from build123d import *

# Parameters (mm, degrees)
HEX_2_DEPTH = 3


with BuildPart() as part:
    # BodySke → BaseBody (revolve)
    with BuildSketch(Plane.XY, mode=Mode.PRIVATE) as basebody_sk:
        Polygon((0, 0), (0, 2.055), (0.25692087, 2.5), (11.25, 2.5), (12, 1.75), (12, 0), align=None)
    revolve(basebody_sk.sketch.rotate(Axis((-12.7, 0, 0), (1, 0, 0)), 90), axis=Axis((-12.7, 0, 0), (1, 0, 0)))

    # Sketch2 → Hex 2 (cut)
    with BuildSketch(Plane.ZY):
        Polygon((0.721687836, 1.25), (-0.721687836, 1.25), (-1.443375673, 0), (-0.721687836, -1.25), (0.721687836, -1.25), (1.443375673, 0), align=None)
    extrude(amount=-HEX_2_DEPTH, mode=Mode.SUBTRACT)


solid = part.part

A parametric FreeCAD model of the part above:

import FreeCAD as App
import Part
import Sketcher

V = App.Vector
Q = App.Units.Quantity

doc = App.newDocument("Part")
body = doc.addObject("PartDesign::Body", "Body")

sketch1 = doc.addObject("Sketcher::SketchObject", "Sketch")
body.addObject(sketch1)
sketch1.AttachmentSupport = (doc.XY_Plane, [""])
sketch1.MapMode = "FlatFace"
sketch1.addGeometry([
    Part.LineSegment(V(0, 2.1, 0), V(0, 0, 0)),
    Part.LineSegment(V(0, 0, 0), V(12, 0, 0)),
    Part.LineSegment(V(12, 0, 0), V(12, 1.8, 0)),
    Part.LineSegment(V(12, 1.8, 0), V(11.2, 2.5, 0)),
    Part.LineSegment(V(11.2, 2.5, 0), V(0.3, 2.5, 0)),
    Part.LineSegment(V(0.3, 2.5, 0), V(0, 2.1, 0)),
], False)
sketch1.addConstraint([
    Sketcher.Constraint("Coincident", 0, 2, 1, 1),
    Sketcher.Constraint("Coincident", 1, 2, 2, 1),
    Sketcher.Constraint("Coincident", 2, 2, 3, 1),
    Sketcher.Constraint("Coincident", 3, 2, 4, 1),
    Sketcher.Constraint("Coincident", 4, 2, 5, 1),
    Sketcher.Constraint("Coincident", 5, 2, 0, 1),
    Sketcher.Constraint("Vertical", 0),
    Sketcher.Constraint("Horizontal", 1),
    Sketcher.Constraint("Vertical", 2),
    Sketcher.Constraint("Horizontal", 4),
    Sketcher.Constraint("Coincident", 0, 2, -1, 1),
    Sketcher.Constraint("DistanceX", 1, 1, 1, 2, Q("12 mm")),
    Sketcher.Constraint("Angle", 3, Q("135 deg")),
    Sketcher.Constraint("Angle", 5, Q("-120 deg")),
    Sketcher.Constraint("DistanceY", 2, 1, 2, 2, Q("1.75 mm")),
    Sketcher.Constraint("DistanceY", -1, 1, 3, 2, Q("2.5 mm")),
    Sketcher.Constraint("DistanceY", 0, 2, 0, 1, Q("2.055 mm")),
])
revolution = doc.addObject("PartDesign::Revolution", "Revolution")
body.addObject(revolution)
revolution.Profile = sketch1
revolution.ReferenceAxis = (sketch1, ["H_Axis"])
revolution.Angle = 360

sketch2 = doc.addObject("Sketcher::SketchObject", "Sketch001")
body.addObject(sketch2)
sketch2.AttachmentSupport = (doc.YZ_Plane, [""])
sketch2.MapMode = "FlatFace"
sketch2.addGeometry([
    Part.LineSegment(V(1.2, 0.7, 0), V(1.2, -0.7, 0)),
    Part.LineSegment(V(1.2, -0.7, 0), V(0, -1.4, 0)),
    Part.LineSegment(V(0, -1.4, 0), V(-1.2, -0.7, 0)),
    Part.LineSegment(V(-1.2, -0.7, 0), V(-1.2, 0.7, 0)),
    Part.LineSegment(V(-1.2, 0.7, 0), V(0, 1.4, 0)),
    Part.LineSegment(V(0, 1.4, 0), V(1.2, 0.7, 0)),
], False)
sketch2.addConstraint([
    Sketcher.Constraint("Coincident", 0, 2, 1, 1),
    Sketcher.Constraint("Coincident", 1, 2, 2, 1),
    Sketcher.Constraint("Coincident", 2, 2, 3, 1),
    Sketcher.Constraint("Coincident", 3, 2, 4, 1),
    Sketcher.Constraint("Coincident", 4, 2, 5, 1),
    Sketcher.Constraint("Coincident", 5, 2, 0, 1),
    Sketcher.Constraint("Vertical", 0),
    Sketcher.Constraint("Vertical", 3),
    Sketcher.Constraint("Symmetric", 0, 2, 3, 2, -1, 1),
    Sketcher.Constraint("Symmetric", 1, 2, 4, 2, -1, 1),
    Sketcher.Constraint("PointOnObject", 1, 2, -2),
    Sketcher.Constraint("Parallel", 2, 5),
    Sketcher.Constraint("Horizontal", 0, 2, 2, 2),
    Sketcher.Constraint("Angle", 1, Q("-150 deg")),
    Sketcher.Constraint("DistanceX", 2, 2, 0, 2, Q("2.5 mm")),
    Sketcher.Constraint("DistanceY", 0, 2, 0, 1, Q("1.443376 mm")),
])
pocket1 = doc.addObject("PartDesign::Pocket", "Pocket")
body.addObject(pocket1)
pocket1.Profile = sketch2
pocket1.Length = 3
pocket1.Reversed = True

doc.recompute()
